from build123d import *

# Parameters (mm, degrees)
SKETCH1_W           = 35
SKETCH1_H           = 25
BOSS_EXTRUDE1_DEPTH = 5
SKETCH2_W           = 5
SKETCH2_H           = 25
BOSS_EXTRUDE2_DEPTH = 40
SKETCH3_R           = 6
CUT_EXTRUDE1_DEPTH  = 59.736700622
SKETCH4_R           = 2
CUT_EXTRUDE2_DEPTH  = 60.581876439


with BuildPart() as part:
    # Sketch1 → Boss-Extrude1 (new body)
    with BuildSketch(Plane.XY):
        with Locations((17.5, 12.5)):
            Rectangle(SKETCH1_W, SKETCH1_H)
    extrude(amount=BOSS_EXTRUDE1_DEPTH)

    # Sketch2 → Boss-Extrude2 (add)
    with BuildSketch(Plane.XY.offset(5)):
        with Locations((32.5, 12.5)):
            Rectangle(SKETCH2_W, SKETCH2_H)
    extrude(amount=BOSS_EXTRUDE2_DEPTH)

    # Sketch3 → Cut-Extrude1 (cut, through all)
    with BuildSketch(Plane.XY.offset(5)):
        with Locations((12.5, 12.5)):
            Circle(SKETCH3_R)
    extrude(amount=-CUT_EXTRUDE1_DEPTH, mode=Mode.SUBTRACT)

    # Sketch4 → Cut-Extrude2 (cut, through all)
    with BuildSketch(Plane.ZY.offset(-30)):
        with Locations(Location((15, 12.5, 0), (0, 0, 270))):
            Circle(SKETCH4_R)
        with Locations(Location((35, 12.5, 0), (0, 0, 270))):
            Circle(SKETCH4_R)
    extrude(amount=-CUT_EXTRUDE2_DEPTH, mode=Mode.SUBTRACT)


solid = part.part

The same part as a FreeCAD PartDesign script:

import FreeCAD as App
import Part
import Sketcher

V = App.Vector
Q = App.Units.Quantity

doc = App.newDocument("Part")
params = doc.addObject("Spreadsheet::Sheet", "Params")
for row, (alias, value) in enumerate([
    ("sketch1_width", "35 mm"),
    ("sketch1_height", "25 mm"),
    ("pad1_length", "5 mm"),
    ("sketch2_width", "5 mm"),
    ("sketch2_height", "25 mm"),
    ("pad2_length", "40 mm"),
    ("sketch3_diameter", "12 mm"),
    ("sketch4_diameter", "4 mm"),
], start=1):
    params.set(f"A{row}", alias)
    params.set(f"B{row}", "=" + value)
    params.setAlias(f"B{row}", alias)

body = doc.addObject("PartDesign::Body", "Body")

sketch1 = body.newObject("Sketcher::SketchObject", "Sketch")
sketch1.AttachmentSupport = (doc.getObject("XY_Plane"), [""])
sketch1.MapMode = "FlatFace"
sketch1.addGeometry([
    Part.LineSegment(V(0, 25, 0), V(0, 0, 0)),
    Part.LineSegment(V(0, 0, 0), V(35, 0, 0)),
    Part.LineSegment(V(35, 0, 0), V(35, 25, 0)),
    Part.LineSegment(V(35, 25, 0), V(0, 25, 0)),
], False)
sketch1.addConstraint([
    Sketcher.Constraint("Coincident", 0, 2, 1, 1),
    Sketcher.Constraint("Coincident", 1, 2, 2, 1),
    Sketcher.Constraint("Coincident", 2, 2, 3, 1),
    Sketcher.Constraint("Coincident", 3, 2, 0, 1),
    Sketcher.Constraint("Vertical", 0),
    Sketcher.Constraint("Horizontal", 1),
    Sketcher.Constraint("Vertical", 2),
    Sketcher.Constraint("Horizontal", 3),
    Sketcher.Constraint("Coincident", 0, 2, -1, 1),
    Sketcher.Constraint("DistanceX", 1, 1, 1, 2, Q("35 mm")),
    Sketcher.Constraint("DistanceY", 0, 2, 0, 1, Q("25 mm")),
])
sketch1.setExpression("Constraints[9]", "Params.sketch1_width")
sketch1.setExpression("Constraints[10]", "Params.sketch1_height")
pad1 = body.newObject("PartDesign::Pad", "Pad")
pad1.Profile = sketch1
pad1.setExpression("Length", "Params.pad1_length")

sketch2 = body.newObject("Sketcher::SketchObject", "Sketch001")
sketch2.AttachmentSupport = (doc.getObject("XY_Plane"), [""])
sketch2.MapMode = "FlatFace"
sketch2.AttachmentOffset = App.Placement(V(0, 0, 5), App.Rotation())
sketch2.addGeometry([
    Part.LineSegment(V(30, 25, 0), V(30, 0, 0)),
    Part.LineSegment(V(30, 0, 0), V(35, 0, 0)),
    Part.LineSegment(V(35, 0, 0), V(35, 25, 0)),
    Part.LineSegment(V(35, 25, 0), V(30, 25, 0)),
], False)
sketch2.addConstraint([
    Sketcher.Constraint("Coincident", 0, 2, 1, 1),
    Sketcher.Constraint("Coincident", 1, 2, 2, 1),
    Sketcher.Constraint("Coincident", 2, 2, 3, 1),
    Sketcher.Constraint("Coincident", 3, 2, 0, 1),
    Sketcher.Constraint("Vertical", 0),
    Sketcher.Constraint("Horizontal", 1),
    Sketcher.Constraint("Vertical", 2),
    Sketcher.Constraint("Horizontal", 3),
    Sketcher.Constraint("PointOnObject", 0, 2, -1),
    Sketcher.Constraint("DistanceX", 1, 1, 1, 2, Q("5 mm")),
    Sketcher.Constraint("DistanceY", 0, 2, 0, 1, Q("25 mm")),
    Sketcher.Constraint("DistanceX", -1, 1, 0, 2, Q("30 mm")),
])
sketch2.setExpression("Constraints[9]", "Params.sketch2_width")
sketch2.setExpression("Constraints[10]", "Params.sketch2_height")
pad2 = body.newObject("PartDesign::Pad", "Pad001")
pad2.Profile = sketch2
pad2.setExpression("Length", "Params.pad2_length")

sketch3 = body.newObject("Sketcher::SketchObject", "Sketch002")
sketch3.AttachmentSupport = (doc.getObject("XY_Plane"), [""])
sketch3.MapMode = "FlatFace"
sketch3.AttachmentOffset = App.Placement(V(0, 0, 5), App.Rotation())
sketch3.addGeometry(Part.Circle(V(12, 12, 0), V(0, 0, 1), 6), False)
sketch3.addConstraint([
    Sketcher.Constraint("Diameter", 0, Q("12 mm")),
    Sketcher.Constraint("DistanceX", -1, 1, 0, 3, Q("12.5 mm")),
    Sketcher.Constraint("DistanceY", -1, 1, 0, 3, Q("12.5 mm")),
])
sketch3.setExpression("Constraints[0]", "Params.sketch3_diameter")
pocket1 = body.newObject("PartDesign::Pocket", "Pocket")
pocket1.Profile = sketch3
pocket1.Type = "ThroughAll"

sketch4 = body.newObject("Sketcher::SketchObject", "Sketch003")
sketch4.AttachmentSupport = (doc.getObject("YZ_Plane"), [""])
sketch4.MapMode = "FlatFace"
sketch4.AttachmentOffset = App.Placement(V(0, 0, 30), App.Rotation())
sketch4.addGeometry([
    Part.Circle(V(12.5, 15, 0), V(0, 0, 1), 2),
    Part.Circle(V(12.5, 35, 0), V(0, 0, 1), 2),
], False)
sketch4.addConstraint([
    Sketcher.Constraint("Equal", 0, 1),
    Sketcher.Constraint("Vertical", 0, 3, 1, 3),
    Sketcher.Constraint("Diameter", 0, Q("4 mm")),
    Sketcher.Constraint("DistanceY", -1, 1, 0, 3, Q("15 mm")),
    Sketcher.Constraint("DistanceY", -1, 1, 1, 3, Q("35 mm")),
    Sketcher.Constraint("DistanceX", -1, 1, 0, 3, Q("12.5 mm")),
])
sketch4.setExpression("Constraints[2]", "Params.sketch4_diameter")
pocket2 = body.newObject("PartDesign::Pocket", "Pocket001")
pocket2.Profile = sketch4
pocket2.Type = "ThroughAll"
pocket2.Reversed = True

doc.recompute()
